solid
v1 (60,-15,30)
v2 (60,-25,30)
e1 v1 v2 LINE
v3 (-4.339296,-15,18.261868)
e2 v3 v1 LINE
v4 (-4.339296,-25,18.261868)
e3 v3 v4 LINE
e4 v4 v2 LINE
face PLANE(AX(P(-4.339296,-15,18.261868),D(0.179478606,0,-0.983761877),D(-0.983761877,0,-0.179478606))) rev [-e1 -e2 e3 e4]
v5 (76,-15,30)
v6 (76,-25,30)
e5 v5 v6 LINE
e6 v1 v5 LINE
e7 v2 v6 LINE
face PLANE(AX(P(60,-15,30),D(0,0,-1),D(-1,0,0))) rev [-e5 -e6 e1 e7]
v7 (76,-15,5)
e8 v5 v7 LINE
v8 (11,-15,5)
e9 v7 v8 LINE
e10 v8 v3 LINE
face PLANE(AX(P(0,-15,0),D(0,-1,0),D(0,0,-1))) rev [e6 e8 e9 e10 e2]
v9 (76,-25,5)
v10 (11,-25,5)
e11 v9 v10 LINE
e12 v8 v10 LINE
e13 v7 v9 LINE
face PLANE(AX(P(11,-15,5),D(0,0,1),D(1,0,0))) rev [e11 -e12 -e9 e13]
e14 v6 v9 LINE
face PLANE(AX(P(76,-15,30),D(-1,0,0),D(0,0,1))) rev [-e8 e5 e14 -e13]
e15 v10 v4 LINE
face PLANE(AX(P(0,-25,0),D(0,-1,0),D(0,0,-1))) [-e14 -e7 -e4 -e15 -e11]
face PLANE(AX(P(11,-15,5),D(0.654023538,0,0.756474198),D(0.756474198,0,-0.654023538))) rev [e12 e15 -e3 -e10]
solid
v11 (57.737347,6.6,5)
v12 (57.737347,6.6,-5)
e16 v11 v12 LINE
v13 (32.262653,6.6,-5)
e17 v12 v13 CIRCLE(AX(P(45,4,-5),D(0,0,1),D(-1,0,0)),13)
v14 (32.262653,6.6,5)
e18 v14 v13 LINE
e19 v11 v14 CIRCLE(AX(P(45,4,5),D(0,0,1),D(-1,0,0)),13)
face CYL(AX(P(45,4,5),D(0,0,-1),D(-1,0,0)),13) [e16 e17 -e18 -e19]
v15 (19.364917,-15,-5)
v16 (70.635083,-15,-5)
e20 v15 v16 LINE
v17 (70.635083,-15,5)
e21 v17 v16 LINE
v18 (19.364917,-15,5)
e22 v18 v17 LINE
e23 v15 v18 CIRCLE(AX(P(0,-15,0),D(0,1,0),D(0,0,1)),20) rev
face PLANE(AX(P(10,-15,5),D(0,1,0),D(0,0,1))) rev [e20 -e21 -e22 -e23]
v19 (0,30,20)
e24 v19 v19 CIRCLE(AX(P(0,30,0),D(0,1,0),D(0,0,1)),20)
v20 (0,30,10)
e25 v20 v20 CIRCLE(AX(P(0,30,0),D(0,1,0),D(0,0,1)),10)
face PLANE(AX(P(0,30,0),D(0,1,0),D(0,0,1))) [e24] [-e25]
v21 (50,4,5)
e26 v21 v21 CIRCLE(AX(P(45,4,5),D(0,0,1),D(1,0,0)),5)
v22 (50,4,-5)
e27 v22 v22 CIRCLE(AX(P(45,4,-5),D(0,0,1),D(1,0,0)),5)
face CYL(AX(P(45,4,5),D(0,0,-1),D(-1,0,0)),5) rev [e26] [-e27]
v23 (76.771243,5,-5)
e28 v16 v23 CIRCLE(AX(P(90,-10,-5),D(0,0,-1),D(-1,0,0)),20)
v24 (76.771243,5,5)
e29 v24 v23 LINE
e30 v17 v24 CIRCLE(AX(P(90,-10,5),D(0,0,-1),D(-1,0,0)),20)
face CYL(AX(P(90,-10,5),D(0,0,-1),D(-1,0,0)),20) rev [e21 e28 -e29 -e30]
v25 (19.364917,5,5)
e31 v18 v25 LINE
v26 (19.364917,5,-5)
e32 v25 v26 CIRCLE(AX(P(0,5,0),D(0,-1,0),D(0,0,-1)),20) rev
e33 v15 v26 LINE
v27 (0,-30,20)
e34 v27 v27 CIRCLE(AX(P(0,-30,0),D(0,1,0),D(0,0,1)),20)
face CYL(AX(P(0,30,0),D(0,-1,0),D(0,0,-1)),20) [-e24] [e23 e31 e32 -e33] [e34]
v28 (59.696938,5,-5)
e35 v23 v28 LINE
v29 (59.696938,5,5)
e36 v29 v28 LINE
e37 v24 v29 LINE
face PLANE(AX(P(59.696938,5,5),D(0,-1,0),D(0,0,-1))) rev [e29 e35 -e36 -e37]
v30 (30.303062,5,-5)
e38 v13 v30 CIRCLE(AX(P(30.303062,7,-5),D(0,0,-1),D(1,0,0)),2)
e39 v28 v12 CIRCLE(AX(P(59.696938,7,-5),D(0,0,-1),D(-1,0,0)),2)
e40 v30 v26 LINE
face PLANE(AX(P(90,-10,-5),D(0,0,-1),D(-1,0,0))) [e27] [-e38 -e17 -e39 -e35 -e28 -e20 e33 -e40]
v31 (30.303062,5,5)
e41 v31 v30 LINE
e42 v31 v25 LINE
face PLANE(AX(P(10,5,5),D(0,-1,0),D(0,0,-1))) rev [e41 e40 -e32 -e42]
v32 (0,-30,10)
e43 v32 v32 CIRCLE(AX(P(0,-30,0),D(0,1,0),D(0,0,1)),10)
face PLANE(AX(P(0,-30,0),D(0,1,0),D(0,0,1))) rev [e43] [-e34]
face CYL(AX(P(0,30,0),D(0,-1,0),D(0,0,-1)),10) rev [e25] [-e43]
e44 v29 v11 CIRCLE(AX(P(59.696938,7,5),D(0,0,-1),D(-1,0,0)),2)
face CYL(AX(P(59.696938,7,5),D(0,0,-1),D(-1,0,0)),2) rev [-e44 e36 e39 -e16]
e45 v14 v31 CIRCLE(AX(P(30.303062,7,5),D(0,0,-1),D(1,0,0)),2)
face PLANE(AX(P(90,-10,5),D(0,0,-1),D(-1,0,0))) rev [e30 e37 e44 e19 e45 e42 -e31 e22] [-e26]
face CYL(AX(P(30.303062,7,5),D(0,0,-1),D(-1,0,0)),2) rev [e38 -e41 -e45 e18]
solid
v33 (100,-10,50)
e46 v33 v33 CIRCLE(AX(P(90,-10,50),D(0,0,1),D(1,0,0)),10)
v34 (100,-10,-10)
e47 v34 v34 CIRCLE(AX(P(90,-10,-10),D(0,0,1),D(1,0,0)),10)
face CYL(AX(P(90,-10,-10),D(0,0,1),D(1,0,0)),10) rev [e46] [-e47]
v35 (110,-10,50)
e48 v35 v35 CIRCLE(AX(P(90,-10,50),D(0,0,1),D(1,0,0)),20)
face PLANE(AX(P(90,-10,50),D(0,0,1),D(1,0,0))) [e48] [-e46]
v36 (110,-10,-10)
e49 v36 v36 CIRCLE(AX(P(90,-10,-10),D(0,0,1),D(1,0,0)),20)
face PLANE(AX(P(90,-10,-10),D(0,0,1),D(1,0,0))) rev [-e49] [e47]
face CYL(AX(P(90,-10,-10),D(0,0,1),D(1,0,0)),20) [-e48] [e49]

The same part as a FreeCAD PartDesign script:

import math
import FreeCAD as App
import Part
import Sketcher

V = App.Vector
Q = App.Units.Quantity

doc = App.newDocument("Part")
body = doc.addObject("PartDesign::Body", "Body")

# Sketch on XY plane
sketch1 = doc.addObject("Sketcher::SketchObject", "Sketch")
body.addObject(sketch1)
sketch1.AttachmentSupport = (doc.XY_Plane, [""])
sketch1.MapMode = "FlatFace"
sketch1.AttachmentOffset = App.Placement(V(0, 0, 50), App.Rotation())
sketch1.addGeometry(Part.Circle(V(90, -10, 0), V(0, 0, 1), 20), False)
sketch1.addGeometry(Part.Circle(V(90, -10, 0), V(0, 0, 1), 10), False)
sketch1.addConstraint(Sketcher.Constraint("Coincident", 1, 3, 0, 3))
sketch1.addConstraint(Sketcher.Constraint("Diameter", 0, Q("40 mm")))
sketch1.addConstraint(Sketcher.Constraint("Diameter", 1, Q("20 mm")))
sketch1.addConstraint(Sketcher.Constraint("DistanceX", -1, 1, 0, 3, Q("90 mm")))
sketch1.addConstraint(Sketcher.Constraint("DistanceY", 0, 3, -1, 1, Q("10 mm")))
pad1 = doc.addObject("PartDesign::Pad", "Pad")
body.addObject(pad1)
pad1.Profile = sketch1
pad1.Length = 60
pad1.Reversed = True
body2 = doc.addObject("PartDesign::Body", "Body001")

# Sketch on XY plane
sketch2 = doc.addObject("Sketcher::SketchObject", "Sketch001")
body2.addObject(sketch2)
sketch2.AttachmentSupport = (doc.getObject("XY_Plane001"), [""])
sketch2.MapMode = "FlatFace"
sketch2.AttachmentOffset = App.Placement(V(0, 0, -5), App.Rotation())
sketch2.addGeometry(Part.LineSegment(V(10, -15, 0), V(70.635083, -15, 0)), False)
sketch2.addGeometry(Part.ArcOfCircle(Part.Circle(V(90, -10, 0), V(0, 0, 1), 20), math.radians(131.409622), math.radians(194.477512)), False)
sketch2.addGeometry(Part.LineSegment(V(76.771243, 5, 0), V(59.696938, 5, 0)), False)
sketch2.addGeometry(Part.ArcOfCircle(Part.Circle(V(59.696938, 7, 0), V(0, 0, 1), 2), math.radians(-168.463041), math.radians(-90)), False)
sketch2.addGeometry(Part.ArcOfCircle(Part.Circle(V(45, 4, 0), V(0, 0, 1), 13), math.radians(11.536959), math.radians(168.463041)), False)
sketch2.addGeometry(Part.ArcOfCircle(Part.Circle(V(30.303062, 7, 0), V(0, 0, 1), 2), math.radians(-90), math.radians(-11.536959)), False)
sketch2.addGeometry(Part.LineSegment(V(30.303062, 5, 0), V(10, 5, 0)), False)
sketch2.addGeometry(Part.LineSegment(V(10, 5, 0), V(10, -15, 0)), False)
sketch2.addGeometry(Part.Circle(V(45, 4, 0), V(0, 0, 1), 5), False)
sketch2.addConstraint(Sketcher.Constraint("Coincident", 0, 2, 1, 2))
sketch2.addConstraint(Sketcher.Constraint("Coincident", 1, 1, 2, 1))
sketch2.addConstraint(Sketcher.Constraint("Tangent", 2, 2, 3, 2))
sketch2.addConstraint(Sketcher.Constraint("Tangent", 3, 1, 4, 1))
sketch2.addConstraint(Sketcher.Constraint("Tangent", 4, 2, 5, 2))
sketch2.addConstraint(Sketcher.Constraint("Tangent", 5, 1, 6, 1))
sketch2.addConstraint(Sketcher.Constraint("Coincident", 6, 2, 7, 1))
sketch2.addConstraint(Sketcher.Constraint("Coincident", 7, 2, 0, 1))
sketch2.addConstraint(Sketcher.Constraint("Horizontal", 0))
sketch2.addConstraint(Sketcher.Constraint("Horizontal", 2))
sketch2.addConstraint(Sketcher.Constraint("Horizontal", 6))
sketch2.addConstraint(Sketcher.Constraint("Vertical", 7))
sketch2.addConstraint(Sketcher.Constraint("Coincident", 8, 3, 4, 3))
sketch2.addConstraint(Sketcher.Constraint("Equal", 3, 5))
sketch2.addConstraint(Sketcher.Constraint("Horizontal", 3, 3, 5, 3))
sketch2.addConstraint(Sketcher.Constraint("Diameter", 8, Q("10 mm")))
sketch2.addConstraint(Sketcher.Constraint("Radius", 1, Q("20 mm")))
sketch2.addConstraint(Sketcher.Constraint("Radius", 3, Q("2 mm")))
sketch2.addConstraint(Sketcher.Constraint("Radius", 4, Q("13 mm")))
sketch2.addConstraint(Sketcher.Constraint("DistanceY", 7, 2, 7, 1, Q("20 mm")))
sketch2.addConstraint(Sketcher.Constraint("DistanceX", -1, 1, 1, 3, Q("90 mm")))
sketch2.addConstraint(Sketcher.Constraint("DistanceY", 1, 3, -1, 1, Q("10 mm")))
sketch2.addConstraint(Sketcher.Constraint("DistanceY", -1, 1, 3, 3, Q("7 mm")))
sketch2.addConstraint(Sketcher.Constraint("DistanceX", -1, 1, 4, 3, Q("45 mm")))
sketch2.addConstraint(Sketcher.Constraint("DistanceY", -1, 1, 4, 3, Q("4 mm")))
sketch2.addConstraint(Sketcher.Constraint("DistanceX", -1, 1, 6, 2, Q("10 mm")))
pad2 = doc.addObject("PartDesign::Pad", "Pad001")
body2.addObject(pad2)
pad2.Profile = sketch2
pad2.Length = 10

# Sketch on XZ plane
sketch3 = doc.addObject("Sketcher::SketchObject", "Sketch002")
body2.addObject(sketch3)
sketch3.AttachmentSupport = (doc.getObject("XZ_Plane001"), [""])
sketch3.MapMode = "FlatFace"
sketch3.AttachmentOffset = App.Placement(V(0, 0, 30), App.Rotation())
sketch3.addGeometry(Part.Circle(V(0, 0, 0), V(0, 0, 1), 20), False)
sketch3.addGeometry(Part.Circle(V(0, 0, 0), V(0, 0, 1), 10), False)
sketch3.addConstraint(Sketcher.Constraint("Coincident", 0, 3, -1, 1))
sketch3.addConstraint(Sketcher.Constraint("Coincident", 1, 3, -1, 1))
sketch3.addConstraint(Sketcher.Constraint("Diameter", 0, Q("40 mm")))
sketch3.addConstraint(Sketcher.Constraint("Diameter", 1, Q("20 mm")))
pad3 = doc.addObject("PartDesign::Pad", "Pad002")
body2.addObject(pad3)
pad3.Profile = sketch3
pad3.Length = 60
pad3.Reversed = True
body3 = doc.addObject("PartDesign::Body", "Body002")

# Sketch on XZ plane
sketch4 = doc.addObject("Sketcher::SketchObject", "Sketch003")
body3.addObject(sketch4)
sketch4.AttachmentSupport = (doc.getObject("XZ_Plane002"), [""])
sketch4.MapMode = "FlatFace"
sketch4.AttachmentOffset = App.Placement(V(0, 0, 25), App.Rotation())
sketch4.addGeometry(Part.LineSegment(V(76, 5, 0), V(11, 5, 0)), False)
sketch4.addGeometry(Part.LineSegment(V(11, 5, 0), V(-4.339296, 18.261868, 0)), False)
sketch4.addGeometry(Part.LineSegment(V(-4.339296, 18.261868, 0), V(60, 30, 0)), False)
sketch4.addGeometry(Part.LineSegment(V(60, 30, 0), V(76, 30, 0)), False)
sketch4.addGeometry(Part.LineSegment(V(76, 30, 0), V(76, 5, 0)), False)
sketch4.addConstraint(Sketcher.Constraint("Coincident", 0, 2, 1, 1))
sketch4.addConstraint(Sketcher.Constraint("Coincident", 1, 2, 2, 1))
sketch4.addConstraint(Sketcher.Constraint("Coincident", 2, 2, 3, 1))
sketch4.addConstraint(Sketcher.Constraint("Coincident", 3, 2, 4, 1))
sketch4.addConstraint(Sketcher.Constraint("Coincident", 4, 2, 0, 1))
sketch4.addConstraint(Sketcher.Constraint("Horizontal", 0))
sketch4.addConstraint(Sketcher.Constraint("Horizontal", 3))
sketch4.addConstraint(Sketcher.Constraint("Vertical", 4))
sketch4.addConstraint(Sketcher.Constraint("DistanceX", 0, 2, 0, 1, Q("65 mm")))
sketch4.addConstraint(Sketcher.Constraint("DistanceX", 3, 1, 3, 2, Q("16 mm")))
sketch4.addConstraint(Sketcher.Constraint("DistanceY", 4, 2, 4, 1, Q("25 mm")))
sketch4.addConstraint(Sketcher.Constraint("DistanceX", -1, 1, 0, 2, Q("11 mm")))
sketch4.addConstraint(Sketcher.Constraint("DistanceY", -1, 1, 0, 2, Q("5 mm")))
sketch4.addConstraint(Sketcher.Constraint("Distance", 2, Q("65.40129 mm")))
sketch4.addConstraint(Sketcher.Constraint("Distance", 1, Q("20.277355 mm")))
pad4 = doc.addObject("PartDesign::Pad", "Pad003")
body3.addObject(pad4)
pad4.Profile = sketch4
pad4.Length = 10
pad4.Reversed = True

doc.recompute()
